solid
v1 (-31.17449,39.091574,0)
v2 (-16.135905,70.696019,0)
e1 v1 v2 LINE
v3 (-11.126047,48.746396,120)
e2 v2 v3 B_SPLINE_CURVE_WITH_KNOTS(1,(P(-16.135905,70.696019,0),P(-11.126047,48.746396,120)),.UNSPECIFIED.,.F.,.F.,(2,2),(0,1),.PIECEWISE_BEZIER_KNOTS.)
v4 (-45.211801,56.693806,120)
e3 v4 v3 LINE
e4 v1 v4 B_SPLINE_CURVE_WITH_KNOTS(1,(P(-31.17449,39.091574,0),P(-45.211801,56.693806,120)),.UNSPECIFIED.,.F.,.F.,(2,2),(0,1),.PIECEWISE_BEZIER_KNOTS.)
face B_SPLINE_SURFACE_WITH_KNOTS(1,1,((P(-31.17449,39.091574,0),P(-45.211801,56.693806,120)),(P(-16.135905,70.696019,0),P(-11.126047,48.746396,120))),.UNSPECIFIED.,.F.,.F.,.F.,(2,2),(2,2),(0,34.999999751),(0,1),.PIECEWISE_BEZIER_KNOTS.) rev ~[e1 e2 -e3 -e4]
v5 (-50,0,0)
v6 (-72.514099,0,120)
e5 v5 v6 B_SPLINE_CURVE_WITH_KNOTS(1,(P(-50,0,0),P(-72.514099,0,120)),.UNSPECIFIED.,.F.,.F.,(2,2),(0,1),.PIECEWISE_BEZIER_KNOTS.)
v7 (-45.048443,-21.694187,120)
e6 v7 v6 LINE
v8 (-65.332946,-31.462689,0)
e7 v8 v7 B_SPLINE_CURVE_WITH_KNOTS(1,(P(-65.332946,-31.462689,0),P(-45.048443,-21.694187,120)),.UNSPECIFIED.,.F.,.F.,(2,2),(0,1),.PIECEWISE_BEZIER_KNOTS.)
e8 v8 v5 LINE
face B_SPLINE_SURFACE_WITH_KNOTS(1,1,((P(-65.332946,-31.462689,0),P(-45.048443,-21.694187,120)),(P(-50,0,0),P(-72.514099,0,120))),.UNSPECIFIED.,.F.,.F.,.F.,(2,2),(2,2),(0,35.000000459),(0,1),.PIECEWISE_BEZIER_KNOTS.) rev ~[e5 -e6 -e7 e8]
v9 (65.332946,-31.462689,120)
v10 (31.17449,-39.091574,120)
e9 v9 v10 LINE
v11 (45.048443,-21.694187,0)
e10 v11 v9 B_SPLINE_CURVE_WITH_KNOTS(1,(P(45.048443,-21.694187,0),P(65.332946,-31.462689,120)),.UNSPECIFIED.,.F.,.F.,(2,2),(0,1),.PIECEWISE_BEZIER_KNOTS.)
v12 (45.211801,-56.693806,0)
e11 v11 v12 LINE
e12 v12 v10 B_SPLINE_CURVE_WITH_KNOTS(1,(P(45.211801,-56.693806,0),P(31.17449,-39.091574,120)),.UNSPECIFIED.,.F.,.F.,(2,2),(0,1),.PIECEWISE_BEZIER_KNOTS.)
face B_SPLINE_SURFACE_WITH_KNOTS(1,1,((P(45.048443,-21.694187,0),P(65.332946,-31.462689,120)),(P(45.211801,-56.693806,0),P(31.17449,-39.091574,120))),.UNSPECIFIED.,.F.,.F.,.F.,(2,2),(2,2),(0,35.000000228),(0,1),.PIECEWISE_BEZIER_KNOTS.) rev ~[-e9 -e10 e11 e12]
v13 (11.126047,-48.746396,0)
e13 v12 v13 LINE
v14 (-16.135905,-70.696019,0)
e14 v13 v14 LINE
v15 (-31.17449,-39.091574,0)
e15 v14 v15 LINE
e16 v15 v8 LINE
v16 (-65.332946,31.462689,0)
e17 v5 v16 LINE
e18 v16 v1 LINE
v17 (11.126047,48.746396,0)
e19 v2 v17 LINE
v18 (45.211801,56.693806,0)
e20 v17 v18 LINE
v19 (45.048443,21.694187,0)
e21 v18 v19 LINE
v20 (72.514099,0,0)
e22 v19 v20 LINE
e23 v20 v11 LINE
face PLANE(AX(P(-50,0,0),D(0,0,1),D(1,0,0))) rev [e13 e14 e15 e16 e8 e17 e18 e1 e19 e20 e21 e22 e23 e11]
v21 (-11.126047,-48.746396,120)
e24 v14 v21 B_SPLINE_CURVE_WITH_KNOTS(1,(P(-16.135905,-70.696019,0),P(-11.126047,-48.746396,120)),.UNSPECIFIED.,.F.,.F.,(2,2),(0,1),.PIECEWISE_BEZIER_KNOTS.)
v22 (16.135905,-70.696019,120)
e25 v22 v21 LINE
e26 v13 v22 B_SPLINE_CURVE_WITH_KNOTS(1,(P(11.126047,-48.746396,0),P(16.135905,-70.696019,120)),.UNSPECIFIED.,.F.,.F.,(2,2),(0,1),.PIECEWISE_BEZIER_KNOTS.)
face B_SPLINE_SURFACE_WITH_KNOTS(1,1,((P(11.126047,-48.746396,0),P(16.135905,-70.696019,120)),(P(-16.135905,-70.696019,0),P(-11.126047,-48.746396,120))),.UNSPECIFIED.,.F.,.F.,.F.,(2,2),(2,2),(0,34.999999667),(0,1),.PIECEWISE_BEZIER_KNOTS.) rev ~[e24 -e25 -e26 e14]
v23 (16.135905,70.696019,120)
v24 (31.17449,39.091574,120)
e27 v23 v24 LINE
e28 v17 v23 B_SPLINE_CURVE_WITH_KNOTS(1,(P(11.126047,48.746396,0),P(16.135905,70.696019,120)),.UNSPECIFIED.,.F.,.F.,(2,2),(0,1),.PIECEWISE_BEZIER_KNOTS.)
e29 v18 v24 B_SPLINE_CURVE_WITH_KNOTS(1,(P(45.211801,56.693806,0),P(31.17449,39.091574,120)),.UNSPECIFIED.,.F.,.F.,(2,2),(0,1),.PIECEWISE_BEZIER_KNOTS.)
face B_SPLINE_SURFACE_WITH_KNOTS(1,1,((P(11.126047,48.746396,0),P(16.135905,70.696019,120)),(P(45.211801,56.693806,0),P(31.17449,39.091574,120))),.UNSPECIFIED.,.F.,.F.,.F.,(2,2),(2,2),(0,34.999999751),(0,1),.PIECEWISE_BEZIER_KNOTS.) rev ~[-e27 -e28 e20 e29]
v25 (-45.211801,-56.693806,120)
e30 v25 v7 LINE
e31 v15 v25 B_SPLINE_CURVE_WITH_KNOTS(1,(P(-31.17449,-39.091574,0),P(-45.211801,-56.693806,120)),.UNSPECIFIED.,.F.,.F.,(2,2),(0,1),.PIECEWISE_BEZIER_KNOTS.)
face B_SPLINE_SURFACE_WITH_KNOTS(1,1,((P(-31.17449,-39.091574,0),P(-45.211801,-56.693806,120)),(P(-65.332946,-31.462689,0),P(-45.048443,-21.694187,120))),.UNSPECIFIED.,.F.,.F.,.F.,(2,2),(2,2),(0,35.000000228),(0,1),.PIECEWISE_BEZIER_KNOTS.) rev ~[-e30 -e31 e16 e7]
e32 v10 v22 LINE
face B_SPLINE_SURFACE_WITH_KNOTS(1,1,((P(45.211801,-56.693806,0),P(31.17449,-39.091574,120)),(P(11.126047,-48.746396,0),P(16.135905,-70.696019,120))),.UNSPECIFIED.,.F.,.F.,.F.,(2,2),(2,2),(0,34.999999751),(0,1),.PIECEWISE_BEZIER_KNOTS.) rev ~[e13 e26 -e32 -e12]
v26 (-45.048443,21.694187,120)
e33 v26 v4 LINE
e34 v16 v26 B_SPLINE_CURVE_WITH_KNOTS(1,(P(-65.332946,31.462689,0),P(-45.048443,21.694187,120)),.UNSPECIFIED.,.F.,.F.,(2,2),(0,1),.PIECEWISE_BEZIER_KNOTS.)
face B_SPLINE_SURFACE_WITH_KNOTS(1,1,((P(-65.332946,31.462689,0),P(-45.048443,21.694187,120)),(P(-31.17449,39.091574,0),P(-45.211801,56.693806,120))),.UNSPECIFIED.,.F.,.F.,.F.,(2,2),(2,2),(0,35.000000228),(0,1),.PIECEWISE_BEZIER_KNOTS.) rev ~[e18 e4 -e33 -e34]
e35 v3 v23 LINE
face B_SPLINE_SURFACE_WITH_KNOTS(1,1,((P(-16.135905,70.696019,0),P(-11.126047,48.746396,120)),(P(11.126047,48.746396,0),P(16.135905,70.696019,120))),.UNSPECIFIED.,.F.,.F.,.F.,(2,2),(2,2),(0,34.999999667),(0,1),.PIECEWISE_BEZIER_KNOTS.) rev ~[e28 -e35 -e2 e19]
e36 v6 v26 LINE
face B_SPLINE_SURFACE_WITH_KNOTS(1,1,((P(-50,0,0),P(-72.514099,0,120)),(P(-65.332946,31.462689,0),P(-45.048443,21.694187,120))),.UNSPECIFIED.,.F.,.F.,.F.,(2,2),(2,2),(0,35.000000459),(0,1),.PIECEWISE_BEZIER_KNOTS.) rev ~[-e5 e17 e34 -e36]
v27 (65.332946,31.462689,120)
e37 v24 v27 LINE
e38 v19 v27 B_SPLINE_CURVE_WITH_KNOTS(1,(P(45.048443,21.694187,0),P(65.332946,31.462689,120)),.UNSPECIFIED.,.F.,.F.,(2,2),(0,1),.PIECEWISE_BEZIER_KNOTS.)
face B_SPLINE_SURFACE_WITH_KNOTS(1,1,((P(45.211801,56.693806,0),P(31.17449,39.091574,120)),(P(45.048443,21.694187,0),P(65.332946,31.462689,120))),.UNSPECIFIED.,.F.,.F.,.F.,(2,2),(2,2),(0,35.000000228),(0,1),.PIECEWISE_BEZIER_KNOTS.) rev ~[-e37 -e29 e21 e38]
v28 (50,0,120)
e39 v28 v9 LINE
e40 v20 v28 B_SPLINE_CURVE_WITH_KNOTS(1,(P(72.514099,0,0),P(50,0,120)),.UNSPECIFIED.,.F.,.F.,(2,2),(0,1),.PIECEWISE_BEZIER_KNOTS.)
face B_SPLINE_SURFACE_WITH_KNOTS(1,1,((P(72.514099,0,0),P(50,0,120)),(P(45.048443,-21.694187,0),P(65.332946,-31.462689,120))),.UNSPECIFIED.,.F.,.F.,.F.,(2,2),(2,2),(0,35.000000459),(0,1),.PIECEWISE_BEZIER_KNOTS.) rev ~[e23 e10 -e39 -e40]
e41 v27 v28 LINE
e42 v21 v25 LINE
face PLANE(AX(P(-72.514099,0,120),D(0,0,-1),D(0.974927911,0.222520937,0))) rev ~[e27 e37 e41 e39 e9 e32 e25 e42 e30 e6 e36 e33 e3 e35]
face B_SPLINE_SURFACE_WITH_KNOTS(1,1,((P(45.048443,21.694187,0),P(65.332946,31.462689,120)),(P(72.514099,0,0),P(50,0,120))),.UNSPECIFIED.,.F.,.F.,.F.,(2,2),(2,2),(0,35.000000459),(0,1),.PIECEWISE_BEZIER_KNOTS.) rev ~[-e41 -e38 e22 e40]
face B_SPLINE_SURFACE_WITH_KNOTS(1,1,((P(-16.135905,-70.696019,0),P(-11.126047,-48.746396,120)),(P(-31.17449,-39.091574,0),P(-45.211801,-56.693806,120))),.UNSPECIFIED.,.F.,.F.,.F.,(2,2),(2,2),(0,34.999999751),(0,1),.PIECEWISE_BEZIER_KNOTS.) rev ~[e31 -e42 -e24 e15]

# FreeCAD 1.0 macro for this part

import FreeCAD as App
import Part
import Sketcher
from FreeCAD import Vector
Q = App.Units.Quantity


def add_polygon(sketch, points):
    """Adds a closed chain of lines whose ends are joined by coincident constraints."""
    first, n = sketch.GeometryCount, len(points)
    for a, b in zip(points, points[1:] + points[:1]):
        sketch.addGeometry(Part.LineSegment(App.Vector(*a, 0), App.Vector(*b, 0)), False)
    for i in range(n):
        sketch.addConstraint(Sketcher.Constraint("Coincident", first + i, 2, first + (i + 1) % n, 1))

doc = App.newDocument("Part")
params = doc.addObject("Spreadsheet::Sheet", "Params")
for row, (alias, value) in enumerate([
    ("sketch1_length", "35 mm"),
    ("sketch2_length", "35 mm"),
], start=1):
    params.set(f"A{row}", alias)
    params.set(f"B{row}", "=" + value)
    params.setAlias(f"B{row}", alias)

body = doc.addObject("PartDesign::Body", "Body")

# Sketch on XY plane
sketch1 = doc.addObject("Sketcher::SketchObject", "Sketch")
body.addObject(sketch1)
sketch1.AttachmentSupport = (doc.XY_Plane, [""])
sketch1.MapMode = "FlatFace"
add_polygon(sketch1, [(-65.332946, 31.462689), (-50, 0), (-65.332946, -31.462689), (-31.17449, -39.091574), (-16.135905, -70.696019), (11.126047, -48.746396), (45.211801, -56.693806), (45.048443, -21.694187), (72.514099, 0), (45.048443, 21.694187), (45.211801, 56.693806), (11.126047, 48.746396), (-16.135905, 70.696019), (-31.17449, 39.091574)])  # lines 0-13
sketch1.addConstraint([
    Sketcher.Constraint("Symmetric", 6, 2, 8, 2, -1),
    Sketcher.Constraint("Symmetric", 5, 2, 9, 2, -1),
    Sketcher.Constraint("Symmetric", 4, 2, 10, 2, -1),
    Sketcher.Constraint("Symmetric", 3, 2, 11, 2, -1),
    Sketcher.Constraint("Symmetric", 2, 2, 12, 2, -1),
    Sketcher.Constraint("Symmetric", 1, 2, 13, 2, -1),
    Sketcher.Constraint("PointOnObject", 0, 2, -1),
    Sketcher.Constraint("PointOnObject", 7, 2, -1),
    Sketcher.Constraint("Equal", 1, 2),
    Sketcher.Constraint("Equal", 2, 3),
    Sketcher.Constraint("Equal", 3, 4),
    Sketcher.Constraint("Equal", 4, 5),
    Sketcher.Constraint("Equal", 5, 6),
    Sketcher.Constraint("Equal", 6, 7),
    Sketcher.Constraint("Distance", 0, Q("35 mm")),
    Sketcher.Constraint("DistanceX", 0, 2, -1, 1, Q("50 mm")),
    Sketcher.Constraint("DistanceX", -1, 1, 5, 2, Q("45.211801 mm")),
    Sketcher.Constraint("DistanceX", -1, 1, 7, 2, Q("72.514099 mm")),
    Sketcher.Constraint("DistanceY", 4, 2, 9, 2, Q("105.440202 mm")),
    Sketcher.Constraint("DistanceY", 1, 2, -1, 1, Q("31.462689 mm")),
    Sketcher.Constraint("DistanceX", 2, 2, -1, 1, Q("31.17449 mm")),
    Sketcher.Constraint("DistanceY", 3, 2, -1, 1, Q("70.696019 mm")),
])
sketch1.setExpression("Constraints[28]", "Params.sketch1_length")

# Sketch on XY plane
sketch2 = doc.addObject("Sketcher::SketchObject", "Sketch001")
body.addObject(sketch2)
sketch2.AttachmentSupport = (doc.XY_Plane, [""])
sketch2.MapMode = "FlatFace"
sketch2.AttachmentOffset = App.Placement(Vector(0, 0, 120), App.Rotation())
add_polygon(sketch2, [(-45.211801, 56.693806), (-45.048443, 21.694187), (-72.514099, 0), (-45.048443, -21.694187), (-45.211801, -56.693806), (-11.126047, -48.746396), (16.135905, -70.696019), (31.17449, -39.091574), (65.332946, -31.462689), (50, 0), (65.332946, 31.462689), (31.17449, 39.091574), (16.135905, 70.696019), (-11.126047, 48.746396)])  # lines 0-13
sketch2.addConstraint([
    Sketcher.Constraint("Symmetric", 0, 2, 2, 2, -1),
    Sketcher.Constraint("Symmetric", 7, 2, 9, 2, -1),
    Sketcher.Constraint("Symmetric", 6, 2, 10, 2, -1),
    Sketcher.Constraint("Symmetric", 5, 2, 11, 2, -1),
    Sketcher.Constraint("Symmetric", 4, 2, 12, 2, -1),
    Sketcher.Constraint("Symmetric", 3, 2, 13, 2, -1),
    Sketcher.Constraint("PointOnObject", 1, 2, -1),
    Sketcher.Constraint("PointOnObject", 8, 2, -1),
    Sketcher.Constraint("Equal", 0, 1),
    Sketcher.Constraint("Equal", 3, 4),
    Sketcher.Constraint("Equal", 4, 5),
    Sketcher.Constraint("Equal", 5, 6),
    Sketcher.Constraint("Equal", 6, 7),
    Sketcher.Constraint("Equal", 7, 8),
    Sketcher.Constraint("Distance", 0, Q("35 mm")),
    Sketcher.Constraint("DistanceX", -1, 1, 8, 2, Q("50 mm")),
    Sketcher.Constraint("DistanceX", 1, 2, -1, 1, Q("72.514099 mm")),
    Sketcher.Constraint("DistanceX", 3, 2, -1, 1, Q("45.211801 mm")),
    Sketcher.Constraint("DistanceY", 5, 2, -1, 1, Q("70.696019 mm")),
    Sketcher.Constraint("DistanceX", -1, 1, 6, 2, Q("31.17449 mm")),
    Sketcher.Constraint("DistanceY", 7, 2, -1, 1, Q("31.462689 mm")),
    Sketcher.Constraint("DistanceX", 3, 2, 2, 2, Q("0.163358 mm")),
])
sketch2.setExpression("Constraints[28]", "Params.sketch2_length")

additiveloft = doc.addObject("PartDesign::AdditiveLoft", "AdditiveLoft")
body.addObject(additiveloft)
additiveloft.Profile = sketch1
additiveloft.Sections = [sketch2]

doc.recompute()
